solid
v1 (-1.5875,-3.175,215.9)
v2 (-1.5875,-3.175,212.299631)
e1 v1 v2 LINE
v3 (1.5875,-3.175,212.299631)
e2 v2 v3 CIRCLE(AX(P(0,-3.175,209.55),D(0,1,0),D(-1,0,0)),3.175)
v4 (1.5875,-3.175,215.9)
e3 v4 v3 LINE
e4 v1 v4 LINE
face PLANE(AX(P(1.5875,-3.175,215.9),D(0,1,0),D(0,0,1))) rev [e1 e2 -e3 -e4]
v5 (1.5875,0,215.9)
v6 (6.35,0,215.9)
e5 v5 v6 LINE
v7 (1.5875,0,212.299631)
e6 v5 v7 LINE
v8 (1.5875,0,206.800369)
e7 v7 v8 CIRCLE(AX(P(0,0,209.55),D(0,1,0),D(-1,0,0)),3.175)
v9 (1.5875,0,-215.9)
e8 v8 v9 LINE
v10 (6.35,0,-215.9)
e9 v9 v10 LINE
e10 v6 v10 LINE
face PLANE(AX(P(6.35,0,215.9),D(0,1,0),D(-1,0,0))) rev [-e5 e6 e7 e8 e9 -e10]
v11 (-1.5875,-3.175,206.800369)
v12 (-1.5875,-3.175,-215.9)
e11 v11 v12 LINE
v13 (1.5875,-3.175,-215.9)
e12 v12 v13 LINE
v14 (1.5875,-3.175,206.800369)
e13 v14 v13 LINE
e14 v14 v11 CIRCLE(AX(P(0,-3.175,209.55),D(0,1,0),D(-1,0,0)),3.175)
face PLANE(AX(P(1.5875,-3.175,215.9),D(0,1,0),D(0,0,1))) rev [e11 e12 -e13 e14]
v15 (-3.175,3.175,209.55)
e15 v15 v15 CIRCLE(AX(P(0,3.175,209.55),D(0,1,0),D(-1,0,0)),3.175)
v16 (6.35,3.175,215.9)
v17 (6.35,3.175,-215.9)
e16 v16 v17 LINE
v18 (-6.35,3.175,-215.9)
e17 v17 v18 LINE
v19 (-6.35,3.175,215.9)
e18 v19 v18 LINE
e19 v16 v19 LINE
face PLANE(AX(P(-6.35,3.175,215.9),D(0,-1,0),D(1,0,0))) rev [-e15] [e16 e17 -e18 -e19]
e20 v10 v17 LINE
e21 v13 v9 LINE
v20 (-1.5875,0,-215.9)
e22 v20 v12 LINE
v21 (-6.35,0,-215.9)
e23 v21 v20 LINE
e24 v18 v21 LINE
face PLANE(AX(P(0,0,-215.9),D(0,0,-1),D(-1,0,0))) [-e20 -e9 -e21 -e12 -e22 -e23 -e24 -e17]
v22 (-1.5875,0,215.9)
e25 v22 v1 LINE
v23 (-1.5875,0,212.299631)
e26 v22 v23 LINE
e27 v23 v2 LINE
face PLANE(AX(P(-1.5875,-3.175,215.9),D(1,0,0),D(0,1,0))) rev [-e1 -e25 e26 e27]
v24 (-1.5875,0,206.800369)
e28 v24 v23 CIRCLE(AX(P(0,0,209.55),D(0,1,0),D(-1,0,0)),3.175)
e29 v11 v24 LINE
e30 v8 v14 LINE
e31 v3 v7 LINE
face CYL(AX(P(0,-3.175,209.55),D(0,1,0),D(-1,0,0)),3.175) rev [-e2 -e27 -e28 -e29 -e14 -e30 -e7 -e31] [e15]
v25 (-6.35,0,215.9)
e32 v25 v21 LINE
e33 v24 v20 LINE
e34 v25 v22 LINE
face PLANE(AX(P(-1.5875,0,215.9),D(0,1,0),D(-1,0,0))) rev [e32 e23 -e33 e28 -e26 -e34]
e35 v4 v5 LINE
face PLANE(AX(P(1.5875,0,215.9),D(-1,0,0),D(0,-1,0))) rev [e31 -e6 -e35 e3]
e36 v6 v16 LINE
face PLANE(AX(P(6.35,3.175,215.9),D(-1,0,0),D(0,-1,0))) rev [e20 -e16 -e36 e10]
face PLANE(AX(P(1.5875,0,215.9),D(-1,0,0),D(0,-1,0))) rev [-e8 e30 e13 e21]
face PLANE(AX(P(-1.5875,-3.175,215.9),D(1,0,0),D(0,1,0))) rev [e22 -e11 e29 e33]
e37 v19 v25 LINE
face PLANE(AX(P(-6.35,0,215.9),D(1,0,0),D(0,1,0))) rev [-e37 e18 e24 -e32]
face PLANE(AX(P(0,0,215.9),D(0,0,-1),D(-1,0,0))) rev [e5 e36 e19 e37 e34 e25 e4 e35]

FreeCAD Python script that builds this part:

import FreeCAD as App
import Part
import Sketcher
Q = App.Units.Quantity


def add_polygon(sketch, points):
    """Adds a closed chain of lines whose ends are joined by coincident constraints."""
    first, n = sketch.GeometryCount, len(points)
    for a, b in zip(points, points[1:] + points[:1]):
        sketch.addGeometry(Part.LineSegment(App.Vector(*a, 0), App.Vector(*b, 0)), False)
    for i in range(n):
        sketch.addConstraint(Sketcher.Constraint("Coincident", first + i, 2, first + (i + 1) % n, 1))

doc = App.newDocument("Part")
body = doc.addObject("PartDesign::Body", "Body")

# Sketch on XY plane
sketch1 = body.newObject("Sketcher::SketchObject", "Sketch")
sketch1.AttachmentSupport = (doc.getObject("XY_Plane"), [""])
sketch1.MapMode = "FlatFace"
add_polygon(sketch1, [(6.3, 3.2), (-6.3, 3.2), (-6.3, 0), (-1.6, 0), (-1.6, -3.2), (1.6, -3.2), (1.6, 0), (6.3, 0)])  # lines 0-7
sketch1.addConstraint([
    Sketcher.Constraint("Horizontal", 0),
    Sketcher.Constraint("Vertical", 1),
    Sketcher.Constraint("Horizontal", 2),
    Sketcher.Constraint("Vertical", 3),
    Sketcher.Constraint("Horizontal", 4),
    Sketcher.Constraint("Vertical", 5),
    Sketcher.Constraint("Horizontal", 6),
    Sketcher.Constraint("Vertical", 7),
    Sketcher.Constraint("Symmetric", 2, 2, 5, 2, -1, 1),
    Sketcher.Constraint("Symmetric", 1, 2, 6, 2, -2),
    Sketcher.Constraint("Equal", 4, 1),
    Sketcher.Constraint("Equal", 1, 3),
    Sketcher.Constraint("DistanceX", 0, 2, 0, 1, Q("0.5 in")),
    Sketcher.Constraint("DistanceX", 2, 1, 2, 2, Q("0.1875 in")),
])
pad1 = body.newObject("PartDesign::Pad", "Pad")
pad1.Profile = sketch1
pad1.Length = Q("17 in")
pad1.Midplane = True

# Sketch on XZ plane
sketch2 = body.newObject("Sketcher::SketchObject", "Sketch001")
sketch2.AttachmentSupport = (doc.getObject("XZ_Plane"), [""])
sketch2.MapMode = "FlatFace"
sketch2.AttachmentOffset = App.Placement(App.Vector(0, 0, -0.125 * 25.4), App.Rotation())
sketch2.addGeometry(Part.Circle(App.Vector(0, 209.6, 0), App.Vector(0, 0, 1), 3.2), False)
sketch2.addConstraint([
    Sketcher.Constraint("PointOnObject", 0, 3, -2),
    Sketcher.Constraint("Diameter", 0, Q("0.25 in")),
    Sketcher.Constraint("DistanceY", -1, 1, 0, 3, Q("8.25 in")),
])
pocket1 = body.newObject("PartDesign::Pocket", "Pocket")
pocket1.Profile = sketch2
pocket1.Type = "ThroughAll"
pocket1.Reversed = True

doc.recompute()
